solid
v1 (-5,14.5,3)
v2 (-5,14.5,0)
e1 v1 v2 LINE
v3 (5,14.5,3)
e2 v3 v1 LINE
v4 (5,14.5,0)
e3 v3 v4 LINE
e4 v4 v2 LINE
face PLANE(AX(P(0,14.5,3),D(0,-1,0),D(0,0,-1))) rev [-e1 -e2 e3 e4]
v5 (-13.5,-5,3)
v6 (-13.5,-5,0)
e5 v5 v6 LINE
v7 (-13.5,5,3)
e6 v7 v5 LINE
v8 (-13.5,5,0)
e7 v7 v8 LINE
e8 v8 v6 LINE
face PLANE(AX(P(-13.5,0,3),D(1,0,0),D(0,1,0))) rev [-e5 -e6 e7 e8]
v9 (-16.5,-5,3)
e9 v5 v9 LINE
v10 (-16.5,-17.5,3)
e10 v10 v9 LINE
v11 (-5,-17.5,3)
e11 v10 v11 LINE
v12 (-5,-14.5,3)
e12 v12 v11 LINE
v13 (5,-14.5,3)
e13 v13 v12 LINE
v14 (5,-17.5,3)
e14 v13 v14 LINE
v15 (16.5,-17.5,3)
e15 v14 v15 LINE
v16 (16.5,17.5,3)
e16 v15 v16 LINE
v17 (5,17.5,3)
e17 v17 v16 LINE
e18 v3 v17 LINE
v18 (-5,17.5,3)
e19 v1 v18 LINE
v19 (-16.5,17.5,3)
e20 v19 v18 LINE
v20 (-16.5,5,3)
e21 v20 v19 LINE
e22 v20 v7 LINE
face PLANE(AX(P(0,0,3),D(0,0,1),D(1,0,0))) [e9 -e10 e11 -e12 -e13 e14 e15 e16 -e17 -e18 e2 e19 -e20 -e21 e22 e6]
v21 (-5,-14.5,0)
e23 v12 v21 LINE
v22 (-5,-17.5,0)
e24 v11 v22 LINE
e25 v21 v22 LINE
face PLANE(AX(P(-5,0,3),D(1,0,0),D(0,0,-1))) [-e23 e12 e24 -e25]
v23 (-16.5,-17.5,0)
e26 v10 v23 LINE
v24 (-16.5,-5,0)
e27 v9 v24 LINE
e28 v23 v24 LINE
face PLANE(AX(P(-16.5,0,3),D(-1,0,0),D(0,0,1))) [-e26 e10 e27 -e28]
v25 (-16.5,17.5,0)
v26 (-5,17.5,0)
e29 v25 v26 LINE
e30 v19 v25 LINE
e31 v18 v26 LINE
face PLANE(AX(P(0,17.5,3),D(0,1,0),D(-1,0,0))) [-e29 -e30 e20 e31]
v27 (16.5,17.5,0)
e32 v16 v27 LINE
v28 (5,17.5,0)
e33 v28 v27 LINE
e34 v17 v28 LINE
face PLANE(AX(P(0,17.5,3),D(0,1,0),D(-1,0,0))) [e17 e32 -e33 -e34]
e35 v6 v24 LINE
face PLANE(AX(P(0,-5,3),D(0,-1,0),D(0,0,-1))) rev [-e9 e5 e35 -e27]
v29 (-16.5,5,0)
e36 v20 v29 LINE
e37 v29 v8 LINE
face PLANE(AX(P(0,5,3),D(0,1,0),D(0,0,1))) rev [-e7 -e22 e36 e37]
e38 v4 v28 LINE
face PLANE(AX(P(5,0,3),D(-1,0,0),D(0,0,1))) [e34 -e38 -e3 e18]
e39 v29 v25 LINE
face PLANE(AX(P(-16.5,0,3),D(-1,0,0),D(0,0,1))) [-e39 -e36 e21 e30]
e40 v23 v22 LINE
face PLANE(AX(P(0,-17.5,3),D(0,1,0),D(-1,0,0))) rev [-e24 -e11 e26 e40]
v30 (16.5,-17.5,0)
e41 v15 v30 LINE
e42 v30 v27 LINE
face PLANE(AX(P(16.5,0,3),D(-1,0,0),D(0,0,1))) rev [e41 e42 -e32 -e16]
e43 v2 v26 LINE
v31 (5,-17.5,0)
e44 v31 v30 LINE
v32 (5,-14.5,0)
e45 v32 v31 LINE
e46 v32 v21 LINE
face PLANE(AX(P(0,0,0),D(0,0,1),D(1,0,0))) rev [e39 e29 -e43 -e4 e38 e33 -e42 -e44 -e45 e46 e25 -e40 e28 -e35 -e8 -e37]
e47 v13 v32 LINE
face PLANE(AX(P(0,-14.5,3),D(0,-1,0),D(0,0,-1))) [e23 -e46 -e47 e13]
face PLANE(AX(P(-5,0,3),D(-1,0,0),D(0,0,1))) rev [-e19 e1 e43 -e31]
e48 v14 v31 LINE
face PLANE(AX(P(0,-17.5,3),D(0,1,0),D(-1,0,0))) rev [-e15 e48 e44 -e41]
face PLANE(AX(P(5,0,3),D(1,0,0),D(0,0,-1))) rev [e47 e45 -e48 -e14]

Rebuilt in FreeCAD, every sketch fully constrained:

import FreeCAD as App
import Part
import Sketcher
from FreeCAD import Vector
Q = App.Units.Quantity

doc = App.newDocument("Part")
body = doc.addObject("PartDesign::Body", "Body")

# Sketch on XY plane
sketch1 = body.newObject("Sketcher::SketchObject", "Sketch")
sketch1.AttachmentSupport = (doc.getObject("XY_Plane"), [""])
sketch1.MapMode = "FlatFace"
sketch1.addGeometry(Part.LineSegment(Vector(-16.5, -5, 0), Vector(-16.5, -17.5, 0)), False)
sketch1.addGeometry(Part.LineSegment(Vector(-16.5, -17.5, 0), Vector(-5, -17.5, 0)), False)
sketch1.addGeometry(Part.LineSegment(Vector(-5, -17.5, 0), Vector(-5, -14.5, 0)), False)
sketch1.addGeometry(Part.LineSegment(Vector(-5, -14.5, 0), Vector(5, -14.5, 0)), False)
sketch1.addGeometry(Part.LineSegment(Vector(5, -14.5, 0), Vector(5, -17.5, 0)), False)
sketch1.addGeometry(Part.LineSegment(Vector(5, -17.5, 0), Vector(16.5, -17.5, 0)), False)
sketch1.addGeometry(Part.LineSegment(Vector(16.5, -17.5, 0), Vector(16.5, 17.5, 0)), False)
sketch1.addGeometry(Part.LineSegment(Vector(16.5, 17.5, 0), Vector(5, 17.5, 0)), False)
sketch1.addGeometry(Part.LineSegment(Vector(5, 17.5, 0), Vector(5, 14.5, 0)), False)
sketch1.addGeometry(Part.LineSegment(Vector(5, 14.5, 0), Vector(-5, 14.5, 0)), False)
sketch1.addGeometry(Part.LineSegment(Vector(-5, 14.5, 0), Vector(-5, 17.5, 0)), False)
sketch1.addGeometry(Part.LineSegment(Vector(-5, 17.5, 0), Vector(-16.5, 17.5, 0)), False)
sketch1.addGeometry(Part.LineSegment(Vector(-16.5, 17.5, 0), Vector(-16.5, 5, 0)), False)
sketch1.addGeometry(Part.LineSegment(Vector(-16.5, 5, 0), Vector(-13.5, 5, 0)), False)
sketch1.addGeometry(Part.LineSegment(Vector(-13.5, 5, 0), Vector(-13.5, -5, 0)), False)
sketch1.addGeometry(Part.LineSegment(Vector(-13.5, -5, 0), Vector(-16.5, -5, 0)), False)
sketch1.addConstraint(Sketcher.Constraint("Coincident", 0, 2, 1, 1))
sketch1.addConstraint(Sketcher.Constraint("Coincident", 1, 2, 2, 1))
sketch1.addConstraint(Sketcher.Constraint("Coincident", 2, 2, 3, 1))
sketch1.addConstraint(Sketcher.Constraint("Coincident", 3, 2, 4, 1))
sketch1.addConstraint(Sketcher.Constraint("Coincident", 4, 2, 5, 1))
sketch1.addConstraint(Sketcher.Constraint("Coincident", 5, 2, 6, 1))
sketch1.addConstraint(Sketcher.Constraint("Coincident", 6, 2, 7, 1))
sketch1.addConstraint(Sketcher.Constraint("Coincident", 7, 2, 8, 1))
sketch1.addConstraint(Sketcher.Constraint("Coincident", 8, 2, 9, 1))
sketch1.addConstraint(Sketcher.Constraint("Coincident", 9, 2, 10, 1))
sketch1.addConstraint(Sketcher.Constraint("Coincident", 10, 2, 11, 1))
sketch1.addConstraint(Sketcher.Constraint("Coincident", 11, 2, 12, 1))
sketch1.addConstraint(Sketcher.Constraint("Coincident", 12, 2, 13, 1))
sketch1.addConstraint(Sketcher.Constraint("Coincident", 13, 2, 14, 1))
sketch1.addConstraint(Sketcher.Constraint("Coincident", 14, 2, 15, 1))
sketch1.addConstraint(Sketcher.Constraint("Coincident", 15, 2, 0, 1))
sketch1.addConstraint(Sketcher.Constraint("Vertical", 0))
sketch1.addConstraint(Sketcher.Constraint("Horizontal", 1))
sketch1.addConstraint(Sketcher.Constraint("Vertical", 2))
sketch1.addConstraint(Sketcher.Constraint("Horizontal", 3))
sketch1.addConstraint(Sketcher.Constraint("Vertical", 4))
sketch1.addConstraint(Sketcher.Constraint("Horizontal", 5))
sketch1.addConstraint(Sketcher.Constraint("Vertical", 6))
sketch1.addConstraint(Sketcher.Constraint("Horizontal", 7))
sketch1.addConstraint(Sketcher.Constraint("Vertical", 8))
sketch1.addConstraint(Sketcher.Constraint("Horizontal", 9))
sketch1.addConstraint(Sketcher.Constraint("Vertical", 10))
sketch1.addConstraint(Sketcher.Constraint("Horizontal", 11))
sketch1.addConstraint(Sketcher.Constraint("Vertical", 12))
sketch1.addConstraint(Sketcher.Constraint("Horizontal", 13))
sketch1.addConstraint(Sketcher.Constraint("Vertical", 14))
sketch1.addConstraint(Sketcher.Constraint("Horizontal", 15))
sketch1.addConstraint(Sketcher.Constraint("Symmetric", 0, 2, 6, 2, -1, 1))
sketch1.addConstraint(Sketcher.Constraint("Symmetric", 2, 2, 8, 2, -1, 1))
sketch1.addConstraint(Sketcher.Constraint("Symmetric", 4, 2, 10, 2, -1, 1))
sketch1.addConstraint(Sketcher.Constraint("Symmetric", 1, 2, 4, 2, -2))
sketch1.addConstraint(Sketcher.Constraint("Symmetric", 12, 2, 15, 2, -1))
sketch1.addConstraint(Sketcher.Constraint("Equal", 15, 2))
sketch1.addConstraint(Sketcher.Constraint("Equal", 9, 14))
sketch1.addConstraint(Sketcher.Constraint("DistanceX", 3, 1, 3, 2, Q("10 mm")))
sketch1.addConstraint(Sketcher.Constraint("DistanceX", 13, 1, 13, 2, Q("3 mm")))
sketch1.addConstraint(Sketcher.Constraint("DistanceY", 6, 1, 6, 2, Q("35 mm")))
sketch1.addConstraint(Sketcher.Constraint("DistanceX", 1, 1, 1, 2, Q("11.5 mm")))
pad1 = body.newObject("PartDesign::Pad", "Pad")
pad1.Profile = sketch1
pad1.Length = 3

doc.recompute()
